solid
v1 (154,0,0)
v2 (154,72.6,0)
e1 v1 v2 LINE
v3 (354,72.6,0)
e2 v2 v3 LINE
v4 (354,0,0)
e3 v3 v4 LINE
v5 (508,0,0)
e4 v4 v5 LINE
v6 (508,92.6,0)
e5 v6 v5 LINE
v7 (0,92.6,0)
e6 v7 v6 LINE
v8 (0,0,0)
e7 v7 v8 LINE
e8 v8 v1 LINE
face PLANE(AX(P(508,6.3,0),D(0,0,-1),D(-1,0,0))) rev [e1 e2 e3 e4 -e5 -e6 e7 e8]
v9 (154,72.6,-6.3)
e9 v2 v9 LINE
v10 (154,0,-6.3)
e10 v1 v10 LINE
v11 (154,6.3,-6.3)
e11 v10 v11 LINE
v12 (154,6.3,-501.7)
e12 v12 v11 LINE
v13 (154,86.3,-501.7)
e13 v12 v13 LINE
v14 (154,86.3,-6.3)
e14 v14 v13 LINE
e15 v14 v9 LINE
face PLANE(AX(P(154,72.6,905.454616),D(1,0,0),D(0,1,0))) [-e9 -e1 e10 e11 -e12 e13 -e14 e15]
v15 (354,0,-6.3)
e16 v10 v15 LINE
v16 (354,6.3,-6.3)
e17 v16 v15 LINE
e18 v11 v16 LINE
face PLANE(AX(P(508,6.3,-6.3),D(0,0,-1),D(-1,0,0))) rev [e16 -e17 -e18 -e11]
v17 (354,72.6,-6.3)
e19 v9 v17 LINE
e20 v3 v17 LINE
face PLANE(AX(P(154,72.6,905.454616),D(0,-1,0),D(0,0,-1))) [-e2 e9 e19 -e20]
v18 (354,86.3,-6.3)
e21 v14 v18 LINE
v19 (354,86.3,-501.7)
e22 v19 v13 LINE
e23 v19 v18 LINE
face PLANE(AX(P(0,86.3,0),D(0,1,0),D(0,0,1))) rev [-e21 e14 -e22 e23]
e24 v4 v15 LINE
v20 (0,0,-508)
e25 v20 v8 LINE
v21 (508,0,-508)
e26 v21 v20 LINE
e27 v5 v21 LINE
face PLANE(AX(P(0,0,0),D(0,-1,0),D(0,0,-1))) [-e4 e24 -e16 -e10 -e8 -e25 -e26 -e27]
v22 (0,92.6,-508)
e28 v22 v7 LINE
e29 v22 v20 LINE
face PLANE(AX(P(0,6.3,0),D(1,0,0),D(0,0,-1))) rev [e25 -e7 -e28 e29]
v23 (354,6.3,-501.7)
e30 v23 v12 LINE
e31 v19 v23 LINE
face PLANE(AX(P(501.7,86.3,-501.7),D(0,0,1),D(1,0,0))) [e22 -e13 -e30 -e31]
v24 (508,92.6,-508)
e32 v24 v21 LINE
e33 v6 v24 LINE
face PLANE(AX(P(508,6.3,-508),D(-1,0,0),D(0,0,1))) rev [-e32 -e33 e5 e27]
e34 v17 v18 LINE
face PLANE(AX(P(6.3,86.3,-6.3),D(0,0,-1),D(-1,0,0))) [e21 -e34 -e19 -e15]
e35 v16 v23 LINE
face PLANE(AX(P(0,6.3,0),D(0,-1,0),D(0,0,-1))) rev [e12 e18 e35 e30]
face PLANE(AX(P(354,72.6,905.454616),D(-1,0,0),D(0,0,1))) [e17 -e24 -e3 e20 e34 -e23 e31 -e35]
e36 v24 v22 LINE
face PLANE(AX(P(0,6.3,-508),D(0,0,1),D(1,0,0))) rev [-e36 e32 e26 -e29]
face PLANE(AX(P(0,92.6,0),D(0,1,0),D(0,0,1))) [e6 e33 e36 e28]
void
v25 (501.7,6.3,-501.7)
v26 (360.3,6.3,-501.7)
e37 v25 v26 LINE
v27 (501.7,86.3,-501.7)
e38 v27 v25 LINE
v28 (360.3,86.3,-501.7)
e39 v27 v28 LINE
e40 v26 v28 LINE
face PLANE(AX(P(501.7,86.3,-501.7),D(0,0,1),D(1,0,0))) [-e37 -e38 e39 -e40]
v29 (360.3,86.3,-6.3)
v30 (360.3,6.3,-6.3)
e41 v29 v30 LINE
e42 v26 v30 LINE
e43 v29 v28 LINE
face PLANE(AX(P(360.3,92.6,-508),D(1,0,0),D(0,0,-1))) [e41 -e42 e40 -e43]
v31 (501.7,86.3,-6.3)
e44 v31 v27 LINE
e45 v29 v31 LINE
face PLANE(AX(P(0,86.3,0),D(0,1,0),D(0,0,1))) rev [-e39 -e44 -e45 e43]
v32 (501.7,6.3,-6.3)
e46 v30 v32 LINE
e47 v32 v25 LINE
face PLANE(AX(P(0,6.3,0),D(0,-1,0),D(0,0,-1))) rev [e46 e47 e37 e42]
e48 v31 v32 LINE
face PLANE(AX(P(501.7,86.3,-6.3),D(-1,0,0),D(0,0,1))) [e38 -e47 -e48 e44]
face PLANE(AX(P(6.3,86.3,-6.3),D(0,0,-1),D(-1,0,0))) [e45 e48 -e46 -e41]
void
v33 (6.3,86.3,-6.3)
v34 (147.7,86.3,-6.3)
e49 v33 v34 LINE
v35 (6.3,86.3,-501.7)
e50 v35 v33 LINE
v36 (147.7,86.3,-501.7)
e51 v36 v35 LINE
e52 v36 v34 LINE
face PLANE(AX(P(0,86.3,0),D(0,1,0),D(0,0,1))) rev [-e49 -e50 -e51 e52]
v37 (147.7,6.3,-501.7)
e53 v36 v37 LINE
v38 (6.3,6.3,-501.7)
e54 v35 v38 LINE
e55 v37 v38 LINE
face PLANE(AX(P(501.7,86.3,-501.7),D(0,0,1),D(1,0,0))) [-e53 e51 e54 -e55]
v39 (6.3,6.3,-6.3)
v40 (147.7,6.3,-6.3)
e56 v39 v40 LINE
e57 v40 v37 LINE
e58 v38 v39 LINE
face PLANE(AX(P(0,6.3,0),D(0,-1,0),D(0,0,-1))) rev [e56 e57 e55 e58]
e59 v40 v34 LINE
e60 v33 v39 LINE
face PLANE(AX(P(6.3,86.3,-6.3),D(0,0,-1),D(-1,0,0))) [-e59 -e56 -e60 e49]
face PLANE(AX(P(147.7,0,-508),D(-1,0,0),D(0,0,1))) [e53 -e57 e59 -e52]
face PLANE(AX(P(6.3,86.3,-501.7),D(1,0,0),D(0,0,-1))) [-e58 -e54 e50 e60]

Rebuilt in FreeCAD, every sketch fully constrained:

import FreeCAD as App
import Part
import Sketcher


def add_polygon(sketch, points):
    """Adds a closed chain of lines whose ends are joined by coincident constraints."""
    first, n = sketch.GeometryCount, len(points)
    for a, b in zip(points, points[1:] + points[:1]):
        sketch.addGeometry(Part.LineSegment(App.Vector(*a, 0), App.Vector(*b, 0)), False)
    for i in range(n):
        sketch.addConstraint(Sketcher.Constraint("Coincident", first + i, 2, first + (i + 1) % n, 1))

doc = App.newDocument("Part")
body = doc.addObject("PartDesign::Body", "Body")

# Sketch on XZ plane
sketch1 = body.newObject("Sketcher::SketchObject", "Sketch")
sketch1.AttachmentSupport = (doc.getObject("XZ_Plane"), [""])
sketch1.MapMode = "FlatFace"
add_polygon(sketch1, [(0, -508), (0, 0), (508, 0), (508, -508)])  # lines 0-3
sketch1.addConstraint([
    Sketcher.Constraint("Vertical", 0),
    Sketcher.Constraint("Horizontal", 1),
    Sketcher.Constraint("Vertical", 2),
    Sketcher.Constraint("Horizontal", 3),
    Sketcher.Constraint("Coincident", 0, 2, -1, 1),
    Sketcher.Constraint("Equal", 3, 0),
    Sketcher.Constraint("DistanceX", 1, 1, 1, 2, 508.0),
])
pad1 = body.newObject("PartDesign::Pad", "Pad")
pad1.Profile = sketch1
pad1.Length = 6.3
pad1.Reversed = True

# Sketch on XZ plane
sketch2 = body.newObject("Sketcher::SketchObject", "Sketch001")
sketch2.AttachmentSupport = (doc.getObject("XZ_Plane"), [""])
sketch2.MapMode = "FlatFace"
sketch2.AttachmentOffset = App.Placement(App.Vector(0, 0, -6.3), App.Rotation())
add_polygon(sketch2, [(0, -508), (0, 0), (508, 0), (508, -508)])  # lines 0-3
add_polygon(sketch2, [(501.7, -6.3), (6.3, -6.3), (6.3, -501.7), (501.7, -501.7)])  # lines 4-7
sketch2.addConstraint([
    Sketcher.Constraint("Vertical", 0),
    Sketcher.Constraint("Horizontal", 1),
    Sketcher.Constraint("Vertical", 2),
    Sketcher.Constraint("Horizontal", 3),
    Sketcher.Constraint("Horizontal", 4),
    Sketcher.Constraint("Vertical", 5),
    Sketcher.Constraint("Horizontal", 6),
    Sketcher.Constraint("Vertical", 7),
    Sketcher.Constraint("Coincident", 0, 2, -1, 1),
    Sketcher.Constraint("Equal", 3, 0),
    Sketcher.Constraint("Equal", 6, 5),
    Sketcher.Constraint("DistanceX", 1, 1, 1, 2, 508.0),
    Sketcher.Constraint("DistanceX", 4, 2, 4, 1, 495.4),
    Sketcher.Constraint("DistanceX", -1, 1, 4, 2, 6.3),
    Sketcher.Constraint("DistanceY", 4, 2, -1, 1, 6.3),
])
pad2 = body.newObject("PartDesign::Pad", "Pad001")
pad2.Profile = sketch2
pad2.Length = 80
pad2.Reversed = True

# Sketch on XZ plane
sketch3 = body.newObject("Sketcher::SketchObject", "Sketch002")
sketch3.AttachmentSupport = (doc.getObject("XZ_Plane"), [""])
sketch3.MapMode = "FlatFace"
sketch3.AttachmentOffset = App.Placement(App.Vector(0, 0, -86.3), App.Rotation())
add_polygon(sketch3, [(0, -508), (0, 0), (508, 0), (508, -508)])  # lines 0-3
sketch3.addConstraint([
    Sketcher.Constraint("Vertical", 0),
    Sketcher.Constraint("Horizontal", 1),
    Sketcher.Constraint("Vertical", 2),
    Sketcher.Constraint("Horizontal", 3),
    Sketcher.Constraint("Coincident", 0, 2, -1, 1),
    Sketcher.Constraint("Equal", 3, 0),
    Sketcher.Constraint("DistanceX", 1, 1, 1, 2, 508.0),
])
pad3 = body.newObject("PartDesign::Pad", "Pad002")
pad3.Profile = sketch3
pad3.Length = 6.3
pad3.Reversed = True

# Sketch on XY plane
sketch4 = body.newObject("Sketcher::SketchObject", "Sketch003")
sketch4.AttachmentSupport = (doc.getObject("XY_Plane"), [""])
sketch4.MapMode = "FlatFace"
add_polygon(sketch4, [(154, 72.6), (154, 0), (354, 0), (354, 72.6)])  # lines 0-3
sketch4.addConstraint([
    Sketcher.Constraint("Vertical", 0),
    Sketcher.Constraint("Horizontal", 1),
    Sketcher.Constraint("Vertical", 2),
    Sketcher.Constraint("Horizontal", 3),
    Sketcher.Constraint("PointOnObject", 0, 2, -1),
    Sketcher.Constraint("DistanceX", 1, 1, 1, 2, 200.0),
    Sketcher.Constraint("DistanceY", 0, 2, 0, 1, 72.6),
    Sketcher.Constraint("DistanceX", -1, 1, 0, 2, 154.0),
])
pocket1 = body.newObject("PartDesign::Pocket", "Pocket")
pocket1.Profile = sketch4
pocket1.Type = "TwoLengths"
pocket1.Length = 1
pocket1.Length2 = 6.3
pocket1.Reversed = True

# Sketch on XY plane
sketch5 = body.newObject("Sketcher::SketchObject", "Sketch004")
sketch5.AttachmentSupport = (doc.getObject("XY_Plane"), [""])
sketch5.MapMode = "FlatFace"
add_polygon(sketch5, [(147.7, 92.6), (147.7, 0), (154, 0), (154, 92.6)])  # lines 0-3
add_polygon(sketch5, [(354, 92.6), (354, 0), (360.3, 0), (360.3, 92.6)])  # lines 4-7
sketch5.addConstraint([
    Sketcher.Constraint("Vertical", 0),
    Sketcher.Constraint("Horizontal", 1),
    Sketcher.Constraint("Vertical", 2),
    Sketcher.Constraint("Horizontal", 3),
    Sketcher.Constraint("Vertical", 4),
    Sketcher.Constraint("Horizontal", 5),
    Sketcher.Constraint("Vertical", 6),
    Sketcher.Constraint("Horizontal", 7),
    Sketcher.Constraint("PointOnObject", 0, 2, -1),
    Sketcher.Constraint("PointOnObject", 4, 2, -1),
    Sketcher.Constraint("Horizontal", 3, 2, 6, 2),
    Sketcher.Constraint("Equal", 3, 5),
    Sketcher.Constraint("DistanceX", 1, 1, 1, 2, 6.3),
    Sketcher.Constraint("DistanceY", 0, 2, 0, 1, 92.6),
    Sketcher.Constraint("DistanceX", -1, 1, 1, 2, 154.0),
    Sketcher.Constraint("DistanceX", -1, 1, 4, 2, 354.0),
])
pad4 = body.newObject("PartDesign::Pad", "Pad003")
pad4.Profile = sketch5
pad4.Length = 508
pad4.Reversed = True

doc.recompute()
